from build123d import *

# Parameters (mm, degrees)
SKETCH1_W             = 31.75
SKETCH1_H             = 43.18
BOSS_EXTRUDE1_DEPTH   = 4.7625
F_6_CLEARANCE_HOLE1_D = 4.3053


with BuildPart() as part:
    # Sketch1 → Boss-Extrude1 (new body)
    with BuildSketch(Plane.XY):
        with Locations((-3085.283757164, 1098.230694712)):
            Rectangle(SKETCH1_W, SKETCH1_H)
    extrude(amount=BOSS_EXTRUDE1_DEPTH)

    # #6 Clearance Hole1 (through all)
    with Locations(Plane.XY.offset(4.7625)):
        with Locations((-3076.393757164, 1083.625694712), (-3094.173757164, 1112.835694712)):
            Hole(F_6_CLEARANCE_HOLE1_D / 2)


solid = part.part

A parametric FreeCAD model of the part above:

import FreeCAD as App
import Part
import Sketcher
from FreeCAD import Vector
Q = App.Units.Quantity


def add_polygon(sketch, points):
    """Adds a closed chain of lines whose ends are joined by coincident constraints."""
    first, n = sketch.GeometryCount, len(points)
    for a, b in zip(points, points[1:] + points[:1]):
        sketch.addGeometry(Part.LineSegment(App.Vector(*a, 0), App.Vector(*b, 0)), False)
    for i in range(n):
        sketch.addConstraint(Sketcher.Constraint("Coincident", first + i, 2, first + (i + 1) % n, 1))

doc = App.newDocument("Part")
params = doc.addObject("Spreadsheet::Sheet", "Params")
for row, (alias, value) in enumerate([
    ("sketch1_height", "1.7 in"),
    ("sketch1_width", "1.25 in"),
    ("pad1_length", "0.1875 in"),
    ("hole_diameter", "0.1695 in"),
], start=1):
    params.set(f"A{row}", alias)
    params.set(f"B{row}", "=" + value)
    params.setAlias(f"B{row}", alias)

body = doc.addObject("PartDesign::Body", "Body")

# Sketch on XY plane
sketch1 = doc.addObject("Sketcher::SketchObject", "Sketch")
body.addObject(sketch1)
sketch1.AttachmentSupport = (doc.XY_Plane, [""])
sketch1.MapMode = "FlatFace"
add_polygon(sketch1, [(-3101, 1120), (-3101, 1077), (-3069, 1077), (-3069, 1120)])  # lines 0-3
sketch1.addConstraint(Sketcher.Constraint("Vertical", 0))
sketch1.addConstraint(Sketcher.Constraint("Horizontal", 1))
sketch1.addConstraint(Sketcher.Constraint("Vertical", 2))
sketch1.addConstraint(Sketcher.Constraint("Horizontal", 3))
sketch1.addConstraint(Sketcher.Constraint("DistanceY", 0, 2, 0, 1, Q("1.7 in")))
sketch1.addConstraint(Sketcher.Constraint("DistanceX", 1, 1, 1, 2, Q("1.25 in")))
sketch1.addConstraint(Sketcher.Constraint("DistanceX", 0, 2, -1, 1, 3101.158757))
sketch1.addConstraint(Sketcher.Constraint("DistanceY", -1, 1, 0, 2, 1076.640695))
sketch1.setExpression("Constraints[8]", "Params.sketch1_height")
sketch1.setExpression("Constraints[9]", "Params.sketch1_width")
pad1 = doc.addObject("PartDesign::Pad", "Pad")
body.addObject(pad1)
pad1.Profile = sketch1
pad1.setExpression("Length", "Params.pad1_length")

# Sketch on XY plane
sketch2 = doc.addObject("Sketcher::SketchObject", "Sketch001")
body.addObject(sketch2)
sketch2.AttachmentSupport = (doc.XY_Plane, [""])
sketch2.MapMode = "FlatFace"
sketch2.AttachmentOffset = App.Placement(Vector(0, 0, 0.1875 * 25.4), App.Rotation())
sketch2.addGeometry(Part.Circle(Vector(-3076.4, 1083.6, 0), Vector(0, 0, 1), 2.2), False)
sketch2.addGeometry(Part.Circle(Vector(-3094.2, 1112.8, 0), Vector(0, 0, 1), 2.2), False)
sketch2.addConstraint(Sketcher.Constraint("Equal", 0, 1))
sketch2.addConstraint(Sketcher.Constraint("Diameter", 0, Q("0.1695 in")))
sketch2.addConstraint(Sketcher.Constraint("DistanceX", 1, 3, 0, 3, Q("0.7 in")))
sketch2.addConstraint(Sketcher.Constraint("DistanceY", 0, 3, 1, 3, Q("1.15 in")))
sketch2.addConstraint(Sketcher.Constraint("DistanceX", 0, 3, -1, 1, 3076.393757))
sketch2.addConstraint(Sketcher.Constraint("DistanceY", -1, 1, 0, 3, 1083.625695))
doc.recompute()
hole = doc.addObject("PartDesign::Hole", "Hole")
body.addObject(hole)
hole.Profile = sketch2
hole.ThreadType = "None"
hole.setExpression("Diameter", "Params.hole_diameter")
hole.DepthType = "ThroughAll"

doc.recompute()
